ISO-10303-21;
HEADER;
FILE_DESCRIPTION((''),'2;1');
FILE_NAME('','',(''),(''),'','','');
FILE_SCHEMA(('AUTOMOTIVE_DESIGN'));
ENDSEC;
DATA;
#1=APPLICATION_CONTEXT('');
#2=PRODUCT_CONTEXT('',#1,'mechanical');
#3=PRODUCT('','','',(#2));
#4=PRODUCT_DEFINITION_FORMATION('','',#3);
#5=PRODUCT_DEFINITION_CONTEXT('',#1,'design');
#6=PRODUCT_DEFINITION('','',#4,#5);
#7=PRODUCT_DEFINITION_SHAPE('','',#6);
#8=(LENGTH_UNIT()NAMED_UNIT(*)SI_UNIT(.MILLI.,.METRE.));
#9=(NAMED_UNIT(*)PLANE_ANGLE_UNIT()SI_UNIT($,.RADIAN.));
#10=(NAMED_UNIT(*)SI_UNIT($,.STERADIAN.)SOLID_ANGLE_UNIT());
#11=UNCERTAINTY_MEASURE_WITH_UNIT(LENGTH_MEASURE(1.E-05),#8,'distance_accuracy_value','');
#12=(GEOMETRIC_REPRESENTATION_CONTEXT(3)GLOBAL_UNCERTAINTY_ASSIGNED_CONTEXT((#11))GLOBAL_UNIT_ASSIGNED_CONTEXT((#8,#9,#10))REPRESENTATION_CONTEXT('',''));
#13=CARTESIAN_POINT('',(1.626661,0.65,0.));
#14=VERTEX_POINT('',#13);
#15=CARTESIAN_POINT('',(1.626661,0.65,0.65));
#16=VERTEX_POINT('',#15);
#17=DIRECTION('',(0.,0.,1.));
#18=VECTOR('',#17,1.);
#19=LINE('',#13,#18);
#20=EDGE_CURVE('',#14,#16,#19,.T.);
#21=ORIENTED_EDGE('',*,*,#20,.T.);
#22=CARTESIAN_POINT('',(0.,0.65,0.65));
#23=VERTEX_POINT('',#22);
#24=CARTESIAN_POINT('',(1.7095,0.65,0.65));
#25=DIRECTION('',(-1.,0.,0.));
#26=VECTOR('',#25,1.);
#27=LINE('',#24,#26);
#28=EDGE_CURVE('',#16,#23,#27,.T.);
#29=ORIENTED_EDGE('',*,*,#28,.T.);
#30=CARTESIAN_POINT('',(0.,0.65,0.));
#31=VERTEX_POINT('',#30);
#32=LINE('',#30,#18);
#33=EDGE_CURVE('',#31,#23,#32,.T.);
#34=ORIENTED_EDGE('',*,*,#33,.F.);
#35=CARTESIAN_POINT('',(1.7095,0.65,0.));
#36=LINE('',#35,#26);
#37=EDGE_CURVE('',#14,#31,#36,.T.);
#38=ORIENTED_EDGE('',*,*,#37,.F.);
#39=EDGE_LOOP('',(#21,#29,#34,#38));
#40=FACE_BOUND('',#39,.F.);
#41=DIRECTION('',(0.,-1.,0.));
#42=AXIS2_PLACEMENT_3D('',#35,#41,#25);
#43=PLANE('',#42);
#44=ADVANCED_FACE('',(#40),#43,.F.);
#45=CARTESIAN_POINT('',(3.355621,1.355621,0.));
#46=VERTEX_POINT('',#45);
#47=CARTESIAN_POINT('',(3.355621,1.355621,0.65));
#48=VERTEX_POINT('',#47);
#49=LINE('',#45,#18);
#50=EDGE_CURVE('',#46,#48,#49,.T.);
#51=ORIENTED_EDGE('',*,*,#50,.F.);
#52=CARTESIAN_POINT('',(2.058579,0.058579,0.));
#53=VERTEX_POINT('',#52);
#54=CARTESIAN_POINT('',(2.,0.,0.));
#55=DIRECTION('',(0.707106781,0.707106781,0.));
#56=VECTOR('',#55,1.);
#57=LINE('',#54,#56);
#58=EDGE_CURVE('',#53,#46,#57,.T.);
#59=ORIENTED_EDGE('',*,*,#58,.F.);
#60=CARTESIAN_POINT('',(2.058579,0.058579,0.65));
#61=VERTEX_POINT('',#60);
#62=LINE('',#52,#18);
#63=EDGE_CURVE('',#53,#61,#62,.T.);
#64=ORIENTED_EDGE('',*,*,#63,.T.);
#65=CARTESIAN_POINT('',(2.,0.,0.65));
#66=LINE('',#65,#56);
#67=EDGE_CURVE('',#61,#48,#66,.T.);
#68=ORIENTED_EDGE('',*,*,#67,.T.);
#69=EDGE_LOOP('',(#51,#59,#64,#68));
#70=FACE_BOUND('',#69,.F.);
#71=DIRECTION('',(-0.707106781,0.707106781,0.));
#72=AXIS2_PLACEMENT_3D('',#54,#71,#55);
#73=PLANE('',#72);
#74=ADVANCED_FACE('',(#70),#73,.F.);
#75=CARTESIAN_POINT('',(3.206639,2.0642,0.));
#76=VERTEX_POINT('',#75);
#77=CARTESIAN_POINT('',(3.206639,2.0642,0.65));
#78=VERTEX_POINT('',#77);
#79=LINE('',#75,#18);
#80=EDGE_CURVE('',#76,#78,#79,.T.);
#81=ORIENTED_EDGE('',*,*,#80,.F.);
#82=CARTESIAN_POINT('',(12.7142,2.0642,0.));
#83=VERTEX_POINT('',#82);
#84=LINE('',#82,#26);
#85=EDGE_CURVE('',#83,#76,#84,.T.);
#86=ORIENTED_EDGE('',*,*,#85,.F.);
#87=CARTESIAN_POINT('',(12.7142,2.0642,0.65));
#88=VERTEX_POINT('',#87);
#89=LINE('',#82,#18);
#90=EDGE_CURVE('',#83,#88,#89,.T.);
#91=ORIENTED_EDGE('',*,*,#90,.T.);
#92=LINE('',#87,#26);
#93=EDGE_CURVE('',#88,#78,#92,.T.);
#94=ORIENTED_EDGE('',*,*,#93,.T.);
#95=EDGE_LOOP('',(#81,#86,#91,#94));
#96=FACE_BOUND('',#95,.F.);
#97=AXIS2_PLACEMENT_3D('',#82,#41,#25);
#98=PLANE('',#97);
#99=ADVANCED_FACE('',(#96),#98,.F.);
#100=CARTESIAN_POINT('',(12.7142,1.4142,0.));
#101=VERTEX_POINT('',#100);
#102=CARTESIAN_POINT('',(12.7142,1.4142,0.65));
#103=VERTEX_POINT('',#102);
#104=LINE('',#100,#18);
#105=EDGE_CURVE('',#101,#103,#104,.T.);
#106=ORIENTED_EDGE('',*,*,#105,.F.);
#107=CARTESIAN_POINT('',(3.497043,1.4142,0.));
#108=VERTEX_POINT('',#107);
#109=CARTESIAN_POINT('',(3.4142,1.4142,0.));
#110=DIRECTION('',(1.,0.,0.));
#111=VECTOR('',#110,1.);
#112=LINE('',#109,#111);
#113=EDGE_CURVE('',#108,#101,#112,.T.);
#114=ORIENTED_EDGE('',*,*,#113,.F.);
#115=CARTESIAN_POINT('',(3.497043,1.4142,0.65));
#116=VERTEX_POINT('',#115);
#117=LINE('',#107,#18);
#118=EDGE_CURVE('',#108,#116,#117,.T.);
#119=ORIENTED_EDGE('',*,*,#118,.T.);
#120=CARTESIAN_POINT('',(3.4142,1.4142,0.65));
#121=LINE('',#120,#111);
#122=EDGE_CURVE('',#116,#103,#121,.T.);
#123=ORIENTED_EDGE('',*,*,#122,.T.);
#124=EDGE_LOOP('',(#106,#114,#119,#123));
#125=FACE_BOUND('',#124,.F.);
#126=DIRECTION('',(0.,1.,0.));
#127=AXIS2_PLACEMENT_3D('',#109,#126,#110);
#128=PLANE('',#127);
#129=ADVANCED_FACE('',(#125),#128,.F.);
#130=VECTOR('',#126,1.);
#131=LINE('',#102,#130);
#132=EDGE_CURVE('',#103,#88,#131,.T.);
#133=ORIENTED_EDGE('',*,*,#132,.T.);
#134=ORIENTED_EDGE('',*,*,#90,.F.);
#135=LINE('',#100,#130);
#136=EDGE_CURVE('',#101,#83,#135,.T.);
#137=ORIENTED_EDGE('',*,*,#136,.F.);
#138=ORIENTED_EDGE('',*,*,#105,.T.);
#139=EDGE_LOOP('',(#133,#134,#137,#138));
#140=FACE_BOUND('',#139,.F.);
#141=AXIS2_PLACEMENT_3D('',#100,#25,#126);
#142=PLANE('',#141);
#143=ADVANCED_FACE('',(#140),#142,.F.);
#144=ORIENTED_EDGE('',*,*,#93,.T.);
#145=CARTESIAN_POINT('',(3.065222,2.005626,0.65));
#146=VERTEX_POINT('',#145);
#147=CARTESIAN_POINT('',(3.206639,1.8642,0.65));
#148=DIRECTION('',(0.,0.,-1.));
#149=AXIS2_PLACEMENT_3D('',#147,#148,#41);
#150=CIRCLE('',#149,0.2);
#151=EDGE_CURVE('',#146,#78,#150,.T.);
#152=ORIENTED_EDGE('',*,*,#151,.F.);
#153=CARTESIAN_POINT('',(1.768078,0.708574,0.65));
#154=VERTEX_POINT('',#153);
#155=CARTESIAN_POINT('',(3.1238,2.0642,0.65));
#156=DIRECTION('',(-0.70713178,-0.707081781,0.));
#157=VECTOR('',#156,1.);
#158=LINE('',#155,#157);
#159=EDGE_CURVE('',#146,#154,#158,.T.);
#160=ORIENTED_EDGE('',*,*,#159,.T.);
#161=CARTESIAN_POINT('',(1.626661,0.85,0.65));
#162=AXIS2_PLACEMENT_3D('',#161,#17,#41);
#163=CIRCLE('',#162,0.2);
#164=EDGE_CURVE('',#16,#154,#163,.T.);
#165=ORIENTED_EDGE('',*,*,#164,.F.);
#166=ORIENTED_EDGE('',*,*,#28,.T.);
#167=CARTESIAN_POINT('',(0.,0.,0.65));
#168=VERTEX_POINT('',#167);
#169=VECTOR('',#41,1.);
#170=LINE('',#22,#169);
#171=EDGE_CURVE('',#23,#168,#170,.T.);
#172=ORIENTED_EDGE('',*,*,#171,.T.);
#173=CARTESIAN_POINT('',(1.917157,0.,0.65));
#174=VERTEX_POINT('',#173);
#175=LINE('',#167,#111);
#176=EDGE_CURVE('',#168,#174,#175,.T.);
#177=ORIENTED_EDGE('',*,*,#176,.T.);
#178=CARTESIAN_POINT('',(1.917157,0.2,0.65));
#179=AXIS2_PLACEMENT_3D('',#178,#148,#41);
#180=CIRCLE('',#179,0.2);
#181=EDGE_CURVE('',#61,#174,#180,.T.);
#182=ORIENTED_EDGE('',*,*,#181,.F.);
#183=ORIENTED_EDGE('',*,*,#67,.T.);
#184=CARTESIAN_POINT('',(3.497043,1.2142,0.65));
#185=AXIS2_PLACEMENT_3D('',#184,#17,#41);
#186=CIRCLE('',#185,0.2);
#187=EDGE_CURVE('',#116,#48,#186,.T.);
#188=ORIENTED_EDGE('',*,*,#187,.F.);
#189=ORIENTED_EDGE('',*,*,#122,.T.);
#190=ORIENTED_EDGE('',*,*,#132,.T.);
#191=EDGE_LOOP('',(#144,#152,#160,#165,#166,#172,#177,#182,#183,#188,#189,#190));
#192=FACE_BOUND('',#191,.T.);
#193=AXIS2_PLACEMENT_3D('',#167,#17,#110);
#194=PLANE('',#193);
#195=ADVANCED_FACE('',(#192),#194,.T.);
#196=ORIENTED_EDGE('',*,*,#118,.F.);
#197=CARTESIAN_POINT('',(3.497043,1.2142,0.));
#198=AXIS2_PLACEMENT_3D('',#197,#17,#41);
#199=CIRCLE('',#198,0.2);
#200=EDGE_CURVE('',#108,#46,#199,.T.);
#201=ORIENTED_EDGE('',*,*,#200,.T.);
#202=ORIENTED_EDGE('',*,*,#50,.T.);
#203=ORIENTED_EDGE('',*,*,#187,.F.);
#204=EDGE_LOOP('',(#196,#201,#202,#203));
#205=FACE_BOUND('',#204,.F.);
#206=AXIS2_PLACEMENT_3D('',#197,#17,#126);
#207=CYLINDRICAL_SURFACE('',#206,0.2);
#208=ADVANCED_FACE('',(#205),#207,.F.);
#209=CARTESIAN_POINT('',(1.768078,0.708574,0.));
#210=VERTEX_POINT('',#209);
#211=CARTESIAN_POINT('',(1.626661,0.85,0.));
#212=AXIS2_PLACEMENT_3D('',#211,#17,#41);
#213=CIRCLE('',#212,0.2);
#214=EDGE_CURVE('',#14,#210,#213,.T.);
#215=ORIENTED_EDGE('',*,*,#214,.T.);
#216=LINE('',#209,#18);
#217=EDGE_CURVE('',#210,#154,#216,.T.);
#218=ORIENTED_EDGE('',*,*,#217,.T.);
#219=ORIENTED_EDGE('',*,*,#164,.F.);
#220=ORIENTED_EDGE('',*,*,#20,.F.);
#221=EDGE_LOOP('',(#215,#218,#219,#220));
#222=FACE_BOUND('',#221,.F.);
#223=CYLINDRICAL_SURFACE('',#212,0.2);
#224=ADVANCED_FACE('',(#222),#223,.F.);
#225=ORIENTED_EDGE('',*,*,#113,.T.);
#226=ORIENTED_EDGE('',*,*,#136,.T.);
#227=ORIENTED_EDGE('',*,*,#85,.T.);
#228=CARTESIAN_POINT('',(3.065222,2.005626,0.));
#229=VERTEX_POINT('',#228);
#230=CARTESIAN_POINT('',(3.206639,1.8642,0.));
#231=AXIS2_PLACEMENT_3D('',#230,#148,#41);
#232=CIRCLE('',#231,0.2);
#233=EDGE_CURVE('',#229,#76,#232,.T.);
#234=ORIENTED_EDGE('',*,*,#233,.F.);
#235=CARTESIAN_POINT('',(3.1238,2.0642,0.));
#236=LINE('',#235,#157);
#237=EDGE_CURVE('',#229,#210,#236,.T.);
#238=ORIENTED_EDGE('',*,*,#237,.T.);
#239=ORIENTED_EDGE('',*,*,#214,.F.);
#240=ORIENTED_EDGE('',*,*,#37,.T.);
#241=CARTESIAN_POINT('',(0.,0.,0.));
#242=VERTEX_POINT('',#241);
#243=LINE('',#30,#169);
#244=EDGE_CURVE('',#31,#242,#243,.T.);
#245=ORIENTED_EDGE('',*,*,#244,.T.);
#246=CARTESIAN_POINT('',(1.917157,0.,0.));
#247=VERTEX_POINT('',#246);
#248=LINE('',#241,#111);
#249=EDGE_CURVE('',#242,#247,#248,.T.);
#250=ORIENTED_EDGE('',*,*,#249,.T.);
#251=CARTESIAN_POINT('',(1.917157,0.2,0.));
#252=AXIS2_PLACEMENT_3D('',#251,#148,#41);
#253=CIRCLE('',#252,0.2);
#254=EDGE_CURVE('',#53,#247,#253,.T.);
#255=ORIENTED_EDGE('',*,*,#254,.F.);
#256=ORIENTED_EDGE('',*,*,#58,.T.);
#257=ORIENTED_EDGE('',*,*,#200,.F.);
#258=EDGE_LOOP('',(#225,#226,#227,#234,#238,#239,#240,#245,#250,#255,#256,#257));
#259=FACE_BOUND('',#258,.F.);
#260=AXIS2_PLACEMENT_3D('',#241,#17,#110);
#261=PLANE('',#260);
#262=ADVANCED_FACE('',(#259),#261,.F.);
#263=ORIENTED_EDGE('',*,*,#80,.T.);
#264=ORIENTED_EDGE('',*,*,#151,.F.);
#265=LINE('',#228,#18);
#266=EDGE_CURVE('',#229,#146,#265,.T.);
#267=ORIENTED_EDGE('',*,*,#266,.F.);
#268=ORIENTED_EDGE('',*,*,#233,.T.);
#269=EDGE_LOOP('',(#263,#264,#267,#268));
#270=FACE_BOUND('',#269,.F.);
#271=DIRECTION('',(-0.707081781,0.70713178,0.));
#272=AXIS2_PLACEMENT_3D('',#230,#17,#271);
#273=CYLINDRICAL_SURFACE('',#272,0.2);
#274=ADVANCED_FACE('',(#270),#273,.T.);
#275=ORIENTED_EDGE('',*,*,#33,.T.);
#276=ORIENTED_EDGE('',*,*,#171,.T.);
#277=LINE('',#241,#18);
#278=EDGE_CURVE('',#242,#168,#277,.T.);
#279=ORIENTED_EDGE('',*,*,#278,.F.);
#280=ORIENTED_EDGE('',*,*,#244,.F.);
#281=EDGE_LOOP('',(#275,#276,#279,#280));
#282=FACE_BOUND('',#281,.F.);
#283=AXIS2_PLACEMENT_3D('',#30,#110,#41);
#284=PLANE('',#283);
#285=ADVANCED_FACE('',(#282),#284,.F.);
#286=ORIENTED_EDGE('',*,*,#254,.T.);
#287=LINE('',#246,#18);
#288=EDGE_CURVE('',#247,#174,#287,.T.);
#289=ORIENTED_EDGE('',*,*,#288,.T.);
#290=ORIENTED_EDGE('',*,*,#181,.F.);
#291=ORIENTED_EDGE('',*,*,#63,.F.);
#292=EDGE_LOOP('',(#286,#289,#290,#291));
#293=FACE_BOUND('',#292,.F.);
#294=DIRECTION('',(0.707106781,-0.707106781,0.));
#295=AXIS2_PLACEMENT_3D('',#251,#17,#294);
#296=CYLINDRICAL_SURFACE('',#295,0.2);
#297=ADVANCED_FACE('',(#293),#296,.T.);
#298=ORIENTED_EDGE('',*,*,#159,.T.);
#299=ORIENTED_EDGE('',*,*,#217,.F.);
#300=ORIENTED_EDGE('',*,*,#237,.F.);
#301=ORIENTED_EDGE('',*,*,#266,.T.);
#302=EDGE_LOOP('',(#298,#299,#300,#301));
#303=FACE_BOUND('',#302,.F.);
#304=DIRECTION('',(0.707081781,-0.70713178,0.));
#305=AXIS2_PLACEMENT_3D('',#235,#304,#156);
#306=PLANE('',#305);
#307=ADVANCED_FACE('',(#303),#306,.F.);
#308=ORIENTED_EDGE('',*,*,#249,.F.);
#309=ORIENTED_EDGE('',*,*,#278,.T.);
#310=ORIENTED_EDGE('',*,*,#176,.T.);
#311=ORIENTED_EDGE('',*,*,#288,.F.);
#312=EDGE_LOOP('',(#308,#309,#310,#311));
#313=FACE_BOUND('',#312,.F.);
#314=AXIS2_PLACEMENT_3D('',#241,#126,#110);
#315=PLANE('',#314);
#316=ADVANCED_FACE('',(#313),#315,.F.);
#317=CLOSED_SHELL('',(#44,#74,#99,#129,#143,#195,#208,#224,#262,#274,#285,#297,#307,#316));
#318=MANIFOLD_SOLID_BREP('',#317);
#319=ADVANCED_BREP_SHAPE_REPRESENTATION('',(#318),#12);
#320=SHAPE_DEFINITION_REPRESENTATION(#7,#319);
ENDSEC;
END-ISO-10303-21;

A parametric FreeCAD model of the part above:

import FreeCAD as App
import Part
import Sketcher

V = App.Vector
Q = App.Units.Quantity


def edges_at(feature, points):
    """Names of the edges that pass closest to the given points."""
    edges = feature.Shape.Edges
    near = lambda p: min(range(len(edges)), key=lambda i: edges[i].distToShape(Part.Vertex(*p))[0])
    return sorted({f"Edge{near(p) + 1}" for p in points})

doc = App.newDocument("Part")
body = doc.addObject("PartDesign::Body", "Body")

# Sketch on XY plane
sketch1 = body.newObject("Sketcher::SketchObject", "Sketch")
sketch1.AttachmentSupport = (doc.getObject("XY_Plane"), [""])
sketch1.MapMode = "FlatFace"
sketch1.addGeometry([
    Part.LineSegment(V(0, 0.7, 0), V(0, 0, 0)),  # 0
    Part.LineSegment(V(0, 0, 0), V(2, 0, 0)),  # 1
    Part.LineSegment(V(2, 0, 0), V(3.4, 1.4, 0)),  # 2
    Part.LineSegment(V(3.4, 1.4, 0), V(12.7, 1.4, 0)),  # 3
    Part.LineSegment(V(12.7, 1.4, 0), V(12.7, 2.1, 0)),  # 4
    Part.LineSegment(V(12.7, 2.1, 0), V(3.1, 2.1, 0)),  # 5
    Part.LineSegment(V(3.1, 2.1, 0), V(1.7, 0.7, 0)),  # 6
    Part.LineSegment(V(1.7, 0.7, 0), V(0, 0.7, 0)),  # 7
], False)
sketch1.addConstraint([
    Sketcher.Constraint("Coincident", 0, 2, 1, 1),
    Sketcher.Constraint("Coincident", 1, 2, 2, 1),
    Sketcher.Constraint("Coincident", 2, 2, 3, 1),
    Sketcher.Constraint("Coincident", 3, 2, 4, 1),
    Sketcher.Constraint("Coincident", 4, 2, 5, 1),
    Sketcher.Constraint("Coincident", 5, 2, 6, 1),
    Sketcher.Constraint("Coincident", 6, 2, 7, 1),
    Sketcher.Constraint("Coincident", 7, 2, 0, 1),
    Sketcher.Constraint("Vertical", 0),
    Sketcher.Constraint("Horizontal", 1),
    Sketcher.Constraint("Horizontal", 3),
    Sketcher.Constraint("Vertical", 4),
    Sketcher.Constraint("Horizontal", 5),
    Sketcher.Constraint("Horizontal", 7),
    Sketcher.Constraint("Coincident", 0, 2, -1, 1),
    Sketcher.Constraint("Parallel", 2, 6),
    Sketcher.Constraint("Equal", 0, 4),
    Sketcher.Constraint("DistanceX", 1, 1, 1, 2, Q("2 mm")),
    Sketcher.Constraint("Distance", 2, Q("2 mm")),
    Sketcher.Constraint("DistanceX", 3, 1, 3, 2, Q("9.3 mm")),
    Sketcher.Constraint("DistanceY", 0, 2, 0, 1, Q("0.65 mm")),
    Sketcher.Constraint("Angle", 2, Q("45 deg")),
    Sketcher.Constraint("DistanceX", 5, 2, 5, 1, Q("9.5904 mm")),
])
pad1 = body.newObject("PartDesign::Pad", "Pad")
pad1.Profile = sketch1
pad1.Length = 0.65
doc.recompute()

fillet = body.newObject("PartDesign::Fillet", "Fillet")
fillet.Base = (pad1, edges_at(pad1, [
    (2, 0, 0.325),
    (1.71, 0.65, 0.325),
    (3.124, 2.064, 0.325),
    (3.414, 1.414, 0.325),
]))
fillet.Radius = 0.2

doc.recompute()
